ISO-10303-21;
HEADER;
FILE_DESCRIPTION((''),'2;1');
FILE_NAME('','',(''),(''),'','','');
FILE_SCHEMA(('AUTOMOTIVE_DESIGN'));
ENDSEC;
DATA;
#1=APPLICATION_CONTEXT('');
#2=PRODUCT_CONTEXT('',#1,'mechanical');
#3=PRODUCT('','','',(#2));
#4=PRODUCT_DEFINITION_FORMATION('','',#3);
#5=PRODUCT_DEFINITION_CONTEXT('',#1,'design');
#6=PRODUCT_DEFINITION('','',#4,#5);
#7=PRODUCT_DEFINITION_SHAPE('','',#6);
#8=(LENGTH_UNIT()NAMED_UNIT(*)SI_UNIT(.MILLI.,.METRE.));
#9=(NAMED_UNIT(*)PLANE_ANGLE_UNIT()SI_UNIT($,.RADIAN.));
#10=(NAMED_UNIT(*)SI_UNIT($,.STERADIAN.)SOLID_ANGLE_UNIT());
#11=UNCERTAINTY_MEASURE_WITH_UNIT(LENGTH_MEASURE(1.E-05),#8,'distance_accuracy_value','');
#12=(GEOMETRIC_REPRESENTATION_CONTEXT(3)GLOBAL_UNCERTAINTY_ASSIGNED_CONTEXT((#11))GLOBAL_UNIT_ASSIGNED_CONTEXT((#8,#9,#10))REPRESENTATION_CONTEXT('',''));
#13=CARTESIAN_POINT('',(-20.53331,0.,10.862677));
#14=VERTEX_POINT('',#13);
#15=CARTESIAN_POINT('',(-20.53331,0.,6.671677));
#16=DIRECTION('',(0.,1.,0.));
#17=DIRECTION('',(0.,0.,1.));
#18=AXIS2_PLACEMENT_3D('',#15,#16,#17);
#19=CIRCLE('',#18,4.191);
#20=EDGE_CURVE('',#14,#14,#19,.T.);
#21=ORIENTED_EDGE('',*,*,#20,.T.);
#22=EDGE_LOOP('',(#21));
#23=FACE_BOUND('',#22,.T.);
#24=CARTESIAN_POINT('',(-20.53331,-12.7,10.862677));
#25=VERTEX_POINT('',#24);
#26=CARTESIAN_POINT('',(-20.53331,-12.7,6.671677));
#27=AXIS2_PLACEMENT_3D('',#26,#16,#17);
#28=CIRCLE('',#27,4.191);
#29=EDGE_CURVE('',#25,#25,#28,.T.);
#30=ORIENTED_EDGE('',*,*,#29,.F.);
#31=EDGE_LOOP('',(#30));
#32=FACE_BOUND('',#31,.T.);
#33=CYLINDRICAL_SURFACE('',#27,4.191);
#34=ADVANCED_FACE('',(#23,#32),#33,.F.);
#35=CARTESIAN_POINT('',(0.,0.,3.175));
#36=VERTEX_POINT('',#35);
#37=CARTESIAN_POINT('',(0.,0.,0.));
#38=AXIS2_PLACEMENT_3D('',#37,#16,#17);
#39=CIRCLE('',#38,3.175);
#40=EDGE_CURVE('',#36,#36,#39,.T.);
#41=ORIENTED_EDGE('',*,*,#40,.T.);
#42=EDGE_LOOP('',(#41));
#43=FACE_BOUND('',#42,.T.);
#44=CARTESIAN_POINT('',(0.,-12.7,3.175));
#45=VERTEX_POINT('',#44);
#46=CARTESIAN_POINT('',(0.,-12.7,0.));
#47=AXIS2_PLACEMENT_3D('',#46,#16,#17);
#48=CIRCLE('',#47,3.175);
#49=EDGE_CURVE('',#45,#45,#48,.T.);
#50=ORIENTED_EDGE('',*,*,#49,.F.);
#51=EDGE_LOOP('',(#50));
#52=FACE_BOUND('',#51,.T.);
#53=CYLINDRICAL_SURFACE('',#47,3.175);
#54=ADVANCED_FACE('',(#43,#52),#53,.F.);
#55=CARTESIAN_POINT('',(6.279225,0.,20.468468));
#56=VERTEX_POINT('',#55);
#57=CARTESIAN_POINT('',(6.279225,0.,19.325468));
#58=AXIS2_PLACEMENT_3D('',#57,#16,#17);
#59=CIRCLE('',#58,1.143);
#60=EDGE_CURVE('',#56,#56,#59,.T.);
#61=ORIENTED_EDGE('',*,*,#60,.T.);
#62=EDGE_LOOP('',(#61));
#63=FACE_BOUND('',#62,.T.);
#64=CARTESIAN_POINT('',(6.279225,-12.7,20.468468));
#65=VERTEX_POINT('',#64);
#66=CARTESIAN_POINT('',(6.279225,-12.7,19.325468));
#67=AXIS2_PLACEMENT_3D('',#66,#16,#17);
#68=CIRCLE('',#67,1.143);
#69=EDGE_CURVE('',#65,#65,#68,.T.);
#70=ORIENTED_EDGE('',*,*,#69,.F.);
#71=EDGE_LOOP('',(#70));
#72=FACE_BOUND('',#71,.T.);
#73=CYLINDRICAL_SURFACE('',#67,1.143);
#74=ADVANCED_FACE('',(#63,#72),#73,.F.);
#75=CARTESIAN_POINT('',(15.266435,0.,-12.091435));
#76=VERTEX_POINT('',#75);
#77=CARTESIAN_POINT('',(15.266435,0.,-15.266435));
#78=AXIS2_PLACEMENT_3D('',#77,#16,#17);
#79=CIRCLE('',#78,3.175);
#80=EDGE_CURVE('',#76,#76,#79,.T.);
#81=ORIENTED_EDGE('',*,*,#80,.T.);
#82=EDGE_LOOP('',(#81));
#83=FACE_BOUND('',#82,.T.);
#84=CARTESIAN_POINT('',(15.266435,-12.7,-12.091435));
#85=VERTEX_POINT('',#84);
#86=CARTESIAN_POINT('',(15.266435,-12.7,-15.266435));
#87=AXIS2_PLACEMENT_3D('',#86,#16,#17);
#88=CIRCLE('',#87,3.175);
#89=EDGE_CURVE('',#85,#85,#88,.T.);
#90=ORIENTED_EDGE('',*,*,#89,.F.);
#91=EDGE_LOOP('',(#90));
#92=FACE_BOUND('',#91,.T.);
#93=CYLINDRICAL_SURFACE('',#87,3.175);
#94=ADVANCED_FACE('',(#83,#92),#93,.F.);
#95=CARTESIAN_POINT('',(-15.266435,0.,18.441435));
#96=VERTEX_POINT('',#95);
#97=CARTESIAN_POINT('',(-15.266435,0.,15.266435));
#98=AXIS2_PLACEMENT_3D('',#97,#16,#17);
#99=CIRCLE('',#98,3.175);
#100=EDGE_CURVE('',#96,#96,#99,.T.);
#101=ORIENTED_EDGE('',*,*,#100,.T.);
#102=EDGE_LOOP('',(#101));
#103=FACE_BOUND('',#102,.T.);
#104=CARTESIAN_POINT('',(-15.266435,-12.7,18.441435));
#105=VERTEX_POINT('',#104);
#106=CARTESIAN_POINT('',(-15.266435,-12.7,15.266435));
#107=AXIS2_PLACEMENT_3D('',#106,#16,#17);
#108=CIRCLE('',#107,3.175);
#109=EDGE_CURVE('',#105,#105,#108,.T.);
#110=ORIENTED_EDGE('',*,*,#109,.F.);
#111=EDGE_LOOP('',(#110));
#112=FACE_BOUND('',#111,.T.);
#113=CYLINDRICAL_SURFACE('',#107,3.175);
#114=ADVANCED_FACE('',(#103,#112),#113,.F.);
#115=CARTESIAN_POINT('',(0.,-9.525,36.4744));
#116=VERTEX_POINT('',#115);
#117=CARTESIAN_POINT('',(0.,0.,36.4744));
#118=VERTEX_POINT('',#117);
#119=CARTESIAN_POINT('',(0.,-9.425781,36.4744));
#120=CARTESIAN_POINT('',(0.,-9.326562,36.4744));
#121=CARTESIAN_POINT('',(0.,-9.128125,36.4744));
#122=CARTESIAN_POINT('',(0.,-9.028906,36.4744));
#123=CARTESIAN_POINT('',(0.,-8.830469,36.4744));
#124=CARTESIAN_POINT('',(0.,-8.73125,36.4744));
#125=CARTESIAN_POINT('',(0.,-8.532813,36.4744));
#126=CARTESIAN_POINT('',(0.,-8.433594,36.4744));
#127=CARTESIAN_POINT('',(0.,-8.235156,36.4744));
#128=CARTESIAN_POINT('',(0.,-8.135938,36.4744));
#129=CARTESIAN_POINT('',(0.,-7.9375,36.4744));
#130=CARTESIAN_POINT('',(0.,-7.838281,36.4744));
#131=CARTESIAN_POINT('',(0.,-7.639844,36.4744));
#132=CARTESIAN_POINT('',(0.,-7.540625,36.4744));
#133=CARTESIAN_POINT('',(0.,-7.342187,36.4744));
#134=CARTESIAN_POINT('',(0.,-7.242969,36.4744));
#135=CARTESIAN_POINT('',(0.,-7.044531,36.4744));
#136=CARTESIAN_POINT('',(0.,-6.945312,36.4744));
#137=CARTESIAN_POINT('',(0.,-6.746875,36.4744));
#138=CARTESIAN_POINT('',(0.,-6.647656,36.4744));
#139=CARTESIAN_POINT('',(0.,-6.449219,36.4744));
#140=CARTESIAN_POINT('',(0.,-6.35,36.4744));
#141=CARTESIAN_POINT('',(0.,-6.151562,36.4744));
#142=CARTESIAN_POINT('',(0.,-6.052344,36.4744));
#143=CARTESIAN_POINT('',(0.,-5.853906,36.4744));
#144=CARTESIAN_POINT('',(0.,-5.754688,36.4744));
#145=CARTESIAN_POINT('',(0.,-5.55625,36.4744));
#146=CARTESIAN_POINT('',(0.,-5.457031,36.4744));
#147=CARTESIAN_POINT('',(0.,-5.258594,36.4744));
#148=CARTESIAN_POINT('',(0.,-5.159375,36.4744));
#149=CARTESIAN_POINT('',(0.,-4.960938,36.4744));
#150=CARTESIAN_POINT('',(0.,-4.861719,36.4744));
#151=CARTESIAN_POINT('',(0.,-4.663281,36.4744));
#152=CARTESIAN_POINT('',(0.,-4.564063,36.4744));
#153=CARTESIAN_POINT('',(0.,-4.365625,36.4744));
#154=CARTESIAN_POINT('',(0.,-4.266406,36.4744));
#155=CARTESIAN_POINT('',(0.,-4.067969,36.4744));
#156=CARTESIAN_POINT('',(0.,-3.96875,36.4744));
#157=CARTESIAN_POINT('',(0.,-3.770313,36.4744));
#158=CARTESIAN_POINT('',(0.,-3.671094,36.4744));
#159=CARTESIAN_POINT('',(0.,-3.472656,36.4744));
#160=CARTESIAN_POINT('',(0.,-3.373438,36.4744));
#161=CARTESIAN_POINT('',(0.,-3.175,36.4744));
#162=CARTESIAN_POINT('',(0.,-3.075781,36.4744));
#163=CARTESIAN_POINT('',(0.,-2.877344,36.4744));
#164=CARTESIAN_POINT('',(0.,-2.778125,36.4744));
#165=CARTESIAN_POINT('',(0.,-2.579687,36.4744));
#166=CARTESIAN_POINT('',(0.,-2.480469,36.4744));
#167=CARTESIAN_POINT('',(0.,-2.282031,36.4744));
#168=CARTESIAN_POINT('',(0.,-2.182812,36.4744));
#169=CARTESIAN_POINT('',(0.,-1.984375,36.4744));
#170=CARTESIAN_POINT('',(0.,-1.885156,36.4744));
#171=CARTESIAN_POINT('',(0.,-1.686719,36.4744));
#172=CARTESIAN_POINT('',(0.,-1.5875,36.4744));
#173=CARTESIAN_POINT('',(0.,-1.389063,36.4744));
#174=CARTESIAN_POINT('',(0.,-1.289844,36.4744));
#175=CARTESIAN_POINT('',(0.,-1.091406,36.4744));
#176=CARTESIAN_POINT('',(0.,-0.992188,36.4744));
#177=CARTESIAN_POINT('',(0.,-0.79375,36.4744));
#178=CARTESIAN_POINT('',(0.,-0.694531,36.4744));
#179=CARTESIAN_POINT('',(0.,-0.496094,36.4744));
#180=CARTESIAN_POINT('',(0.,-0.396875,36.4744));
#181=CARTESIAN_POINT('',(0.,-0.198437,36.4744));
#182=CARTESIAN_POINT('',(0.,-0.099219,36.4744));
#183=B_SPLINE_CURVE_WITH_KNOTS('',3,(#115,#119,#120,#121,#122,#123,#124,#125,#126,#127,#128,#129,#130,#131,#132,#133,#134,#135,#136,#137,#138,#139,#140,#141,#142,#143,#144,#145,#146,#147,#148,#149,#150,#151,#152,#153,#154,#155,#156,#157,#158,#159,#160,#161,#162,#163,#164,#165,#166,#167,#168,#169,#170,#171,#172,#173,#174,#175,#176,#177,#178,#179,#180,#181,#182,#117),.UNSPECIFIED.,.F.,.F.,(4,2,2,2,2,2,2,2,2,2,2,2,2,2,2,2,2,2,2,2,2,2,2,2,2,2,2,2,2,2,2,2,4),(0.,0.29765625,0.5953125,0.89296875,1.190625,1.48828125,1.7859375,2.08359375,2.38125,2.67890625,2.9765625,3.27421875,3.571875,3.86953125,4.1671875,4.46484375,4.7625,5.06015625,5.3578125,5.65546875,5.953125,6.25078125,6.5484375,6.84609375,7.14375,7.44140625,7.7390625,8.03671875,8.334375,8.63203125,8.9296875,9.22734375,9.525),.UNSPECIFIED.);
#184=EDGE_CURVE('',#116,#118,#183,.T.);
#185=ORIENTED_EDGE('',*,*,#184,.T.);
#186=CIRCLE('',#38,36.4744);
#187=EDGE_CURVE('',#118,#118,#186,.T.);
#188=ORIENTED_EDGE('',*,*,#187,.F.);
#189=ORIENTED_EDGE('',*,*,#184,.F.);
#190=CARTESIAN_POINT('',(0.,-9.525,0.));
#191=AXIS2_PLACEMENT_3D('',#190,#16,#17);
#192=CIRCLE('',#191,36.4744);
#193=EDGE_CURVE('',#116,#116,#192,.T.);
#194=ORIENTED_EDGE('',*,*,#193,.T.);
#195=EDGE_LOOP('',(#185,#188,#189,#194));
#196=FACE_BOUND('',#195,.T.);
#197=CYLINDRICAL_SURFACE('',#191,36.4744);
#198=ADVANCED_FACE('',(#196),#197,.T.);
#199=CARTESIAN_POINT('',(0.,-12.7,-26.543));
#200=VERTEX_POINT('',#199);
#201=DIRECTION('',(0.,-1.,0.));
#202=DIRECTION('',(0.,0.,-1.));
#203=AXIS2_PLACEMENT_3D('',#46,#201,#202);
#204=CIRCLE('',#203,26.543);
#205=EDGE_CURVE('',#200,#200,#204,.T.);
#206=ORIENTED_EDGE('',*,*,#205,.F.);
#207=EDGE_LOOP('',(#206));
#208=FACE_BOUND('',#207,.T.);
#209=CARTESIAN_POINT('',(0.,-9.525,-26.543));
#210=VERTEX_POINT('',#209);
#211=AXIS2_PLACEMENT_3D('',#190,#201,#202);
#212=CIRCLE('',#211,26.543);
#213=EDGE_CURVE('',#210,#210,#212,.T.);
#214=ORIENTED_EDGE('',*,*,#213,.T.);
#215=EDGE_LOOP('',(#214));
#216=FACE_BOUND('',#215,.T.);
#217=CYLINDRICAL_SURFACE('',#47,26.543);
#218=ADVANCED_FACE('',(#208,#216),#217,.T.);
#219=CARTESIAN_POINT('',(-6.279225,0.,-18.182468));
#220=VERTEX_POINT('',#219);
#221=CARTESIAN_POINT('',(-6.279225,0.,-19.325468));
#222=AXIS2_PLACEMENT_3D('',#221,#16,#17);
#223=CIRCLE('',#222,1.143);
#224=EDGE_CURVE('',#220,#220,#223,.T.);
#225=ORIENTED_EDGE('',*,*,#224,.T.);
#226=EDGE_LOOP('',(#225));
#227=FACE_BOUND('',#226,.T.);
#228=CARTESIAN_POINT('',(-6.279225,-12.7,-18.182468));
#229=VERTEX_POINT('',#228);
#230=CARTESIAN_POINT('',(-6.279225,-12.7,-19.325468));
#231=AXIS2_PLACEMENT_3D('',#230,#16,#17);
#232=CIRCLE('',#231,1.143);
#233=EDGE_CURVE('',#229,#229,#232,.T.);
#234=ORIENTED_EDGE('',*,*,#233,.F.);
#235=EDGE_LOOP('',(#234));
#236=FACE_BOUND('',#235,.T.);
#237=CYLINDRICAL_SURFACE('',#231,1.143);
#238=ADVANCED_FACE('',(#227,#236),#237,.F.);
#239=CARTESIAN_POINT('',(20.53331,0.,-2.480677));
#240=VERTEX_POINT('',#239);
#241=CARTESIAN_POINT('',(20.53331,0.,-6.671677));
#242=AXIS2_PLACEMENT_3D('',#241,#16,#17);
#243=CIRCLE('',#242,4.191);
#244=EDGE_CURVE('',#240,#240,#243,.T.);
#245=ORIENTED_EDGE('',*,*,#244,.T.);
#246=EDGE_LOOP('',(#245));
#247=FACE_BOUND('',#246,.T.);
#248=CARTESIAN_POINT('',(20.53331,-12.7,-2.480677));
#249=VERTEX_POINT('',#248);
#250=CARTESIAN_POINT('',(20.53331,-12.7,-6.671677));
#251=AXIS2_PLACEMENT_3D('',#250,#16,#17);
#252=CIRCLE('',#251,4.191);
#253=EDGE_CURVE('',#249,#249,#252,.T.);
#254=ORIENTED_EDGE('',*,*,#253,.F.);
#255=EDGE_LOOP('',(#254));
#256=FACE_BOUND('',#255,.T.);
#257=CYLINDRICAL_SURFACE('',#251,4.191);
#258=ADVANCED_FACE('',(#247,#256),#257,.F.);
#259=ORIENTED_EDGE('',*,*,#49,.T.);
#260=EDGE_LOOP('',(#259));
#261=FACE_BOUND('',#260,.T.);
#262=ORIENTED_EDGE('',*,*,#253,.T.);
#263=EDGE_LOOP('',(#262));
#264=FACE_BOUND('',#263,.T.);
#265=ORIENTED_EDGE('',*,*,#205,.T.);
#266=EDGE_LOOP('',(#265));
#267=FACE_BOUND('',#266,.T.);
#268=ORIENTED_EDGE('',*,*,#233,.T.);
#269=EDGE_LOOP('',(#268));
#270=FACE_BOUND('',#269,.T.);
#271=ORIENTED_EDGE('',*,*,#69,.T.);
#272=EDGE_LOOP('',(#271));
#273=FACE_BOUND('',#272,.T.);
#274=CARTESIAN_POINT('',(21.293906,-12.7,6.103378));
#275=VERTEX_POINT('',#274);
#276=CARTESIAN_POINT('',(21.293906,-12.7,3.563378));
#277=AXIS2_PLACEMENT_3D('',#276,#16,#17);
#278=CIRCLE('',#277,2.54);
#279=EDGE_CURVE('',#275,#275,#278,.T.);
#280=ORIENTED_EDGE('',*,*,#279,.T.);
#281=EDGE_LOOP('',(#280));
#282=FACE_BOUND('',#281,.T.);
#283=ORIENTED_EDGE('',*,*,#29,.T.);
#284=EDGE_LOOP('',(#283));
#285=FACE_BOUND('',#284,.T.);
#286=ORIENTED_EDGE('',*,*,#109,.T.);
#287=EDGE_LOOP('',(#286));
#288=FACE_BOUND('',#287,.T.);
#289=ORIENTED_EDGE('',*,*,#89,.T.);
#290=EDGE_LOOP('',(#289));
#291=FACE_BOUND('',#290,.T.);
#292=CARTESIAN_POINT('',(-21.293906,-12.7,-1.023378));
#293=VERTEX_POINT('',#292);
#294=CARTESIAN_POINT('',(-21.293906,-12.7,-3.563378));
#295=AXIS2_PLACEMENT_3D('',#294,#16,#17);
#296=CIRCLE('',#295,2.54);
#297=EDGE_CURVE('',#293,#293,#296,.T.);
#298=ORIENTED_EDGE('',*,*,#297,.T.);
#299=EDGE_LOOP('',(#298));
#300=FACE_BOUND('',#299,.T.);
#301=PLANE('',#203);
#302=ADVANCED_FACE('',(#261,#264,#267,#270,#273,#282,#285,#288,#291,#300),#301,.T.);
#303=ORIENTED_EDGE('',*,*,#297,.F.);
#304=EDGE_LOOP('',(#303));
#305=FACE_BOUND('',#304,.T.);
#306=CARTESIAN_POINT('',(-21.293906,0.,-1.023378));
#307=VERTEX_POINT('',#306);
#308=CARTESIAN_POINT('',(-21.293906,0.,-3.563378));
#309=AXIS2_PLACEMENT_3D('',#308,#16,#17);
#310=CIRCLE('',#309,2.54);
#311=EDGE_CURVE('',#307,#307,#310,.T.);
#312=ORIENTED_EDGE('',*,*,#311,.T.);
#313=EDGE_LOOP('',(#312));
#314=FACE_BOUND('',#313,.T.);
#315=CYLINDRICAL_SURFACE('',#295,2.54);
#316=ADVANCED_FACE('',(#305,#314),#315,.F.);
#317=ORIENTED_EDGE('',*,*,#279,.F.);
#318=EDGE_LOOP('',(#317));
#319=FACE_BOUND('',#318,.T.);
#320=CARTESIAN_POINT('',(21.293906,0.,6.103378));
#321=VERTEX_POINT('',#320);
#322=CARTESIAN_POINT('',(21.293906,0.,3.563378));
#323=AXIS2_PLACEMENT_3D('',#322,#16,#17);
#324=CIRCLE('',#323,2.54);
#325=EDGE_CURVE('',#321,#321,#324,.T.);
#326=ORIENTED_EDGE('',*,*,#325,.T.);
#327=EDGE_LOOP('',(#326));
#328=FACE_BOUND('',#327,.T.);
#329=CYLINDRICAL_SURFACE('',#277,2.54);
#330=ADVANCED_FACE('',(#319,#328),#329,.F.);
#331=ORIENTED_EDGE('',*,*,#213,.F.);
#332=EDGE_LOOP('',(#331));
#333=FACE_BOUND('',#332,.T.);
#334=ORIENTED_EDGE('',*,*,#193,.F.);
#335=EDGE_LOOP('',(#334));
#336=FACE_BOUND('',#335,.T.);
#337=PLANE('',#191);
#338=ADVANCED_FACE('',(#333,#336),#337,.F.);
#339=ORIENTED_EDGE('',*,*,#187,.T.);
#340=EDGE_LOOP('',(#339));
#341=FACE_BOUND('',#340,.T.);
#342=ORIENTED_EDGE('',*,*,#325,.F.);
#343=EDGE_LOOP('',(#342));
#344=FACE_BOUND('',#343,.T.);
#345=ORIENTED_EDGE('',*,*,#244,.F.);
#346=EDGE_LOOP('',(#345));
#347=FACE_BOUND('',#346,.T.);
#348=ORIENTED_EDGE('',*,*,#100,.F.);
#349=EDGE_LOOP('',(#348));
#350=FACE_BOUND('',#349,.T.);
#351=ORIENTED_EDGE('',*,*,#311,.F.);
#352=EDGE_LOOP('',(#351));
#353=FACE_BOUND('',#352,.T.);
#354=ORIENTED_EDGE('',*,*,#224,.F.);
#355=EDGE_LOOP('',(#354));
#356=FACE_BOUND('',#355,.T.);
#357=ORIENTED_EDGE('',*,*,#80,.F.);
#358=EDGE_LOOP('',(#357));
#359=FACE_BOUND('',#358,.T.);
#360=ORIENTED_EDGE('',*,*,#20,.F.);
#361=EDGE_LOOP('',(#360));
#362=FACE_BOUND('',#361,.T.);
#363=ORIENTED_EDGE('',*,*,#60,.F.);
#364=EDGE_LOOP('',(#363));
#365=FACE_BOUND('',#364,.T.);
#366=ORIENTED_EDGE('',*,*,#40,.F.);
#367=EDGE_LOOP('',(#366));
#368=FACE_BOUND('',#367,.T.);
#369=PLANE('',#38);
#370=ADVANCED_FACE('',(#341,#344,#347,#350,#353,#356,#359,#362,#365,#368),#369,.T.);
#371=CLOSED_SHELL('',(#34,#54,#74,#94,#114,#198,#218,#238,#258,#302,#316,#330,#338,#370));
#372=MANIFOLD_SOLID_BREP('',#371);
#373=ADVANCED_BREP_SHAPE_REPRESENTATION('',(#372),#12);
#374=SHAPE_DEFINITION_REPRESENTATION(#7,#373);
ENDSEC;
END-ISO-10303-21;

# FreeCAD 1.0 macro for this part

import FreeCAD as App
import Part
import Sketcher
Q = App.Units.Quantity

doc = App.newDocument("Part")
body = doc.addObject("PartDesign::Body", "Body")

# Sketch on XZ plane
sketch1 = body.newObject("Sketcher::SketchObject", "Sketch")
sketch1.AttachmentSupport = (doc.getObject("XZ_Plane"), [""])
sketch1.MapMode = "FlatFace"
sketch1.addGeometry(Part.Circle(App.Vector(0, 0, 0), App.Vector(0, 0, 1), 36.4744), False)
sketch1.addConstraint(Sketcher.Constraint("Coincident", 0, 3, -1, 1))
sketch1.addConstraint(Sketcher.Constraint("Diameter", 0, Q("2.872 in")))
pad1 = body.newObject("PartDesign::Pad", "Pad")
pad1.Profile = sketch1
pad1.Length = Q("0.375 in")

# Sketch on XZ plane
sketch2 = body.newObject("Sketcher::SketchObject", "Sketch001")
sketch2.AttachmentSupport = (doc.getObject("XZ_Plane"), [""])
sketch2.MapMode = "FlatFace"
sketch2.AttachmentOffset = App.Placement(App.Vector(0, 0, 0.375 * 25.4), App.Rotation())
sketch2.addGeometry(Part.Circle(App.Vector(0, 0, 0), App.Vector(0, 0, 1), 26.543), False)
sketch2.addConstraint(Sketcher.Constraint("Coincident", 0, 3, -1, 1))
sketch2.addConstraint(Sketcher.Constraint("Diameter", 0, Q("2.09 in")))
pad2 = body.newObject("PartDesign::Pad", "Pad001")
pad2.Profile = sketch2
pad2.Length = Q("0.125 in")

# Sketch on XZ plane
sketch3 = body.newObject("Sketcher::SketchObject", "Sketch002")
sketch3.AttachmentSupport = (doc.getObject("XZ_Plane"), [""])
sketch3.MapMode = "FlatFace"
sketch3.addGeometry(Part.Circle(App.Vector(0, 0, 0), App.Vector(0, 0, 1), 3.175), False)
sketch3.addGeometry(Part.Circle(App.Vector(-6.279225, -19.325468, 0), App.Vector(0, 0, 1), 1.143), False)
sketch3.addGeometry(Part.Circle(App.Vector(-20.53331, 6.671677, 0), App.Vector(0, 0, 1), 4.191), False)
sketch3.addGeometry(Part.Circle(App.Vector(-15.266435, 15.266435, 0), App.Vector(0, 0, 1), 3.175), False)
sketch3.addGeometry(Part.Circle(App.Vector(15.266435, -15.266435, 0), App.Vector(0, 0, 1), 3.175), False)
sketch3.addGeometry(Part.Circle(App.Vector(6.279225, 19.325468, 0), App.Vector(0, 0, 1), 1.143), False)
sketch3.addGeometry(Part.Circle(App.Vector(20.53331, -6.671677, 0), App.Vector(0, 0, 1), 4.191), False)
sketch3.addGeometry(Part.Circle(App.Vector(21.293906, 3.563378, 0), App.Vector(0, 0, 1), 2.54), False)
sketch3.addGeometry(Part.Circle(App.Vector(-21.293906, -3.563378, 0), App.Vector(0, 0, 1), 2.54), False)
sketch3.addConstraint(Sketcher.Constraint("Coincident", 0, 3, -1, 1))
sketch3.addConstraint(Sketcher.Constraint("Equal", 0, 3))
sketch3.addConstraint(Sketcher.Constraint("Equal", 3, 4))
sketch3.addConstraint(Sketcher.Constraint("Equal", 1, 5))
sketch3.addConstraint(Sketcher.Constraint("Equal", 2, 6))
sketch3.addConstraint(Sketcher.Constraint("Equal", 7, 8))
sketch3.addConstraint(Sketcher.Constraint("Symmetric", 3, 3, 4, 3, -1, 1))
sketch3.addConstraint(Sketcher.Constraint("Symmetric", 1, 3, 5, 3, -1, 1))
sketch3.addConstraint(Sketcher.Constraint("Symmetric", 2, 3, 6, 3, -1, 1))
sketch3.addConstraint(Sketcher.Constraint("Symmetric", 7, 3, 8, 3, -1, 1))
sketch3.addConstraint(Sketcher.Constraint("Diameter", 7, Q("0.2 in")))
sketch3.addConstraint(Sketcher.Constraint("Diameter", 0, Q("0.25 in")))
sketch3.addConstraint(Sketcher.Constraint("Diameter", 1, Q("0.09 in")))
sketch3.addConstraint(Sketcher.Constraint("Diameter", 2, Q("0.33 in")))
sketch3.addConstraint(Sketcher.Constraint("DistanceY", 1, 3, -1, 1, 19.325468))
sketch3.addConstraint(Sketcher.Constraint("DistanceX", 2, 3, -1, 1, 20.53331))
sketch3.addConstraint(Sketcher.Constraint("DistanceY", 2, 3, 3, 3, 8.594758))
sketch3.addConstraint(Sketcher.Constraint("DistanceX", 3, 3, 1, 3, 8.98721))
sketch3.addConstraint(Sketcher.Constraint("DistanceX", 1, 3, 4, 3, 21.545661))
sketch3.addConstraint(Sketcher.Constraint("DistanceY", 4, 3, 3, 3, 30.532871))
sketch3.addConstraint(Sketcher.Constraint("DistanceX", 4, 3, 7, 3, 6.027471))
sketch3.addConstraint(Sketcher.Constraint("DistanceY", 7, 3, 5, 3, 15.762091))
pocket1 = body.newObject("PartDesign::Pocket", "Pocket")
pocket1.Profile = sketch3
pocket1.Type = "ThroughAll"
pocket1.Reversed = True

doc.recompute()
